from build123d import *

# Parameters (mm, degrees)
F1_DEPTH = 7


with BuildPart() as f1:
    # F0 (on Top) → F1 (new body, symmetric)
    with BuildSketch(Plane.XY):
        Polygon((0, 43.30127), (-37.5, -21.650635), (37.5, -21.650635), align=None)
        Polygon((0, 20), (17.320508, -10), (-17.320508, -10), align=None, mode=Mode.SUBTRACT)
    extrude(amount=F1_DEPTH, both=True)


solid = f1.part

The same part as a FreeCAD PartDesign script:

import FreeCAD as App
import Part
import Sketcher

V = App.Vector
Q = App.Units.Quantity

doc = App.newDocument("Part")
body = doc.addObject("PartDesign::Body", "Body")

sketch1 = body.newObject("Sketcher::SketchObject", "Sketch")
sketch1.AttachmentSupport = (doc.getObject("XY_Plane"), [""])
sketch1.MapMode = "FlatFace"
sketch1.addGeometry([
    Part.LineSegment(V(0, 43.30127, 0), V(-37.5, -21.650635, 0)),
    Part.LineSegment(V(-37.5, -21.650635, 0), V(37.5, -21.650635, 0)),
    Part.LineSegment(V(37.5, -21.650635, 0), V(0, 43.30127, 0)),
    Part.LineSegment(V(-17.320508, -10, 0), V(0, 20, 0)),
    Part.LineSegment(V(0, 20, 0), V(17.320508, -10, 0)),
    Part.LineSegment(V(17.320508, -10, 0), V(-17.320508, -10, 0)),
], False)
sketch1.addConstraint([
    Sketcher.Constraint("Coincident", 0, 2, 1, 1),
    Sketcher.Constraint("Coincident", 1, 2, 2, 1),
    Sketcher.Constraint("Coincident", 2, 2, 0, 1),
    Sketcher.Constraint("Coincident", 3, 2, 4, 1),
    Sketcher.Constraint("Coincident", 4, 2, 5, 1),
    Sketcher.Constraint("Coincident", 5, 2, 3, 1),
    Sketcher.Constraint("Horizontal", 1),
    Sketcher.Constraint("Horizontal", 5),
    Sketcher.Constraint("PointOnObject", 2, 2, -2),
    Sketcher.Constraint("PointOnObject", 3, 2, -2),
    Sketcher.Constraint("Parallel", 0, 3),
    Sketcher.Constraint("Parallel", 2, 4),
    Sketcher.Constraint("Equal", 0, 2),
    Sketcher.Constraint("DistanceX", 1, 1, 1, 2, Q("75 mm")),
    Sketcher.Constraint("Angle", 0, Q("-120 deg")),
    Sketcher.Constraint("DistanceY", -1, 1, 3, 2, Q("20 mm")),
    Sketcher.Constraint("DistanceY", 4, 2, -1, 1, Q("10 mm")),
    Sketcher.Constraint("DistanceY", -1, 1, 2, 2, Q("43.30127 mm")),
])
pad1 = body.newObject("PartDesign::Pad", "Pad")
pad1.Profile = sketch1
pad1.Length = 14
pad1.Midplane = True

doc.recompute()
